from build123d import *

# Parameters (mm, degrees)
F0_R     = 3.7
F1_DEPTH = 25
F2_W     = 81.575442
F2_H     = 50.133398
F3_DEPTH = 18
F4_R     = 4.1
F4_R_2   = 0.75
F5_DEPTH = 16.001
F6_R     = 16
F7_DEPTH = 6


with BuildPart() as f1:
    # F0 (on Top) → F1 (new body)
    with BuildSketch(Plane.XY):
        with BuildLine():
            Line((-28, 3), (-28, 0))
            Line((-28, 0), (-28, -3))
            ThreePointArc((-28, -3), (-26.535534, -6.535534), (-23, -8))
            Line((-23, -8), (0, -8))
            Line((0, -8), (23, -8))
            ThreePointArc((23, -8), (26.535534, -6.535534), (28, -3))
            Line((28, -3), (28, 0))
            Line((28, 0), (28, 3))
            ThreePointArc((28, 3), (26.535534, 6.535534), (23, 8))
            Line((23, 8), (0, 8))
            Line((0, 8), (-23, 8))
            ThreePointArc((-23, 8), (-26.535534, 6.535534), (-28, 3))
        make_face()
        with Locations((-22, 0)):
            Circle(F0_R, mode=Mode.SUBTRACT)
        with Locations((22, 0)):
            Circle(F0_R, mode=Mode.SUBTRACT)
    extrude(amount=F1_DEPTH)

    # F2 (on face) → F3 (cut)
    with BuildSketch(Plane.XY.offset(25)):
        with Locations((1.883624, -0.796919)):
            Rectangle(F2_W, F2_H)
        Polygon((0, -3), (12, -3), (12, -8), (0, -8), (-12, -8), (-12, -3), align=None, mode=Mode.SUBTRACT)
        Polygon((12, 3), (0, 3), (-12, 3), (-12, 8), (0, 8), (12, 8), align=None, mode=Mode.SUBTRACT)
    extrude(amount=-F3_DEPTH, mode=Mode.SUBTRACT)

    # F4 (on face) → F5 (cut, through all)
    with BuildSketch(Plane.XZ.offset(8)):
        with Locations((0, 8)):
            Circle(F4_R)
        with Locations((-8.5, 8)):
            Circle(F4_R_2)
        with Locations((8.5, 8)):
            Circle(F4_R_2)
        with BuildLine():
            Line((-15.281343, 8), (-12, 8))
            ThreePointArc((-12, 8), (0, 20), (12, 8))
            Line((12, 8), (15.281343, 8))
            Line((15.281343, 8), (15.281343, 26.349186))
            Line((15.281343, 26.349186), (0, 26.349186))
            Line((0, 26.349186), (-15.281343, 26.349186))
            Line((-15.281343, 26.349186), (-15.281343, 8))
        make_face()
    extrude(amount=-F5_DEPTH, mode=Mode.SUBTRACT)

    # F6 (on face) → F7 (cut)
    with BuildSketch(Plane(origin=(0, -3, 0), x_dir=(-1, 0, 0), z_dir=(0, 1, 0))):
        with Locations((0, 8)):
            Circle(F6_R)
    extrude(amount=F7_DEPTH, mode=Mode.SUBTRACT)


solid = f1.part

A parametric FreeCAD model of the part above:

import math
import FreeCAD as App
import Part
import Sketcher
from FreeCAD import Vector

doc = App.newDocument("Part")
body = doc.addObject("PartDesign::Body", "Body")

sketch1 = body.newObject("Sketcher::SketchObject", "Sketch")
sketch1.AttachmentSupport = (doc.getObject("XY_Plane"), [""])
sketch1.MapMode = "FlatFace"
sketch1.addGeometry([
    Part.LineSegment(Vector(-28, 3, 0), Vector(-28, -3, 0)),
    Part.ArcOfCircle(Part.Circle(Vector(-23, -3, 0), Vector(0, 0, 1), 5), math.radians(180), math.radians(270)),
    Part.LineSegment(Vector(-23, -8, 0), Vector(23, -8, 0)),
    Part.ArcOfCircle(Part.Circle(Vector(23, -3, 0), Vector(0, 0, 1), 5), math.radians(-90), math.radians(0)),
    Part.LineSegment(Vector(28, -3, 0), Vector(28, 3, 0)),
    Part.ArcOfCircle(Part.Circle(Vector(23, 3, 0), Vector(0, 0, 1), 5), math.radians(0), math.radians(90)),
    Part.LineSegment(Vector(23, 8, 0), Vector(-23, 8, 0)),
    Part.ArcOfCircle(Part.Circle(Vector(-23, 3, 0), Vector(0, 0, 1), 5), math.radians(90), math.radians(180)),
    Part.Circle(Vector(-22, 0, 0), Vector(0, 0, 1), 3.7),
    Part.Circle(Vector(22, 0, 0), Vector(0, 0, 1), 3.7),
], False)
sketch1.addConstraint([
    Sketcher.Constraint("Tangent", 0, 2, 1, 1),
    Sketcher.Constraint("Tangent", 1, 2, 2, 1),
    Sketcher.Constraint("Tangent", 2, 2, 3, 1),
    Sketcher.Constraint("Tangent", 3, 2, 4, 1),
    Sketcher.Constraint("Tangent", 4, 2, 5, 1),
    Sketcher.Constraint("Tangent", 5, 2, 6, 1),
    Sketcher.Constraint("Tangent", 6, 2, 7, 1),
    Sketcher.Constraint("Tangent", 7, 2, 0, 1),
    Sketcher.Constraint("Vertical", 0),
    Sketcher.Constraint("Horizontal", 2),
    Sketcher.Constraint("Vertical", 4),
    Sketcher.Constraint("Horizontal", 6),
    Sketcher.Constraint("Equal", 1, 3),
    Sketcher.Constraint("Equal", 3, 5),
    Sketcher.Constraint("Equal", 5, 7),
    Sketcher.Constraint("Equal", 8, 9),
    Sketcher.Constraint("Symmetric", 1, 3, 5, 3, -1, 1),
    Sketcher.Constraint("Symmetric", 8, 3, 9, 3, -1, 1),
    Sketcher.Constraint("PointOnObject", 8, 3, -1),
    Sketcher.Constraint("Radius", 1, 5.0),
    Sketcher.Constraint("Diameter", 8, 7.4),
    Sketcher.Constraint("DistanceX", 2, 1, 2, 2, 46.0),
    Sketcher.Constraint("DistanceY", 0, 2, 0, 1, 6.0),
    Sketcher.Constraint("DistanceX", 8, 3, -1, 1, 22.0),
])
pad1 = body.newObject("PartDesign::Pad", "Pad")
pad1.Profile = sketch1
pad1.Length = 25

sketch2 = body.newObject("Sketcher::SketchObject", "Sketch001")
sketch2.AttachmentSupport = (doc.getObject("XY_Plane"), [""])
sketch2.MapMode = "FlatFace"
sketch2.AttachmentOffset = App.Placement(Vector(0, 0, 25), App.Rotation())
sketch2.addGeometry([
    Part.LineSegment(Vector(-39, 24, 0), Vector(-39, -26, 0)),
    Part.LineSegment(Vector(-39, -26, 0), Vector(43, -26, 0)),
    Part.LineSegment(Vector(43, -26, 0), Vector(43, 24, 0)),
    Part.LineSegment(Vector(43, 24, 0), Vector(-39, 24, 0)),
    Part.LineSegment(Vector(-12, -3, 0), Vector(12, -3, 0)),
    Part.LineSegment(Vector(12, -3, 0), Vector(12, -8, 0)),
    Part.LineSegment(Vector(12, -8, 0), Vector(-12, -8, 0)),
    Part.LineSegment(Vector(-12, -8, 0), Vector(-12, -3, 0)),
    Part.LineSegment(Vector(12, 8, 0), Vector(12, 3, 0)),
    Part.LineSegment(Vector(12, 3, 0), Vector(-12, 3, 0)),
    Part.LineSegment(Vector(-12, 3, 0), Vector(-12, 8, 0)),
    Part.LineSegment(Vector(-12, 8, 0), Vector(12, 8, 0)),
], False)
sketch2.addConstraint([
    Sketcher.Constraint("Coincident", 0, 2, 1, 1),
    Sketcher.Constraint("Coincident", 1, 2, 2, 1),
    Sketcher.Constraint("Coincident", 2, 2, 3, 1),
    Sketcher.Constraint("Coincident", 3, 2, 0, 1),
    Sketcher.Constraint("Coincident", 4, 2, 5, 1),
    Sketcher.Constraint("Coincident", 5, 2, 6, 1),
    Sketcher.Constraint("Coincident", 6, 2, 7, 1),
    Sketcher.Constraint("Coincident", 7, 2, 4, 1),
    Sketcher.Constraint("Coincident", 8, 2, 9, 1),
    Sketcher.Constraint("Coincident", 9, 2, 10, 1),
    Sketcher.Constraint("Coincident", 10, 2, 11, 1),
    Sketcher.Constraint("Coincident", 11, 2, 8, 1),
    Sketcher.Constraint("Vertical", 0),
    Sketcher.Constraint("Horizontal", 1),
    Sketcher.Constraint("Vertical", 2),
    Sketcher.Constraint("Horizontal", 3),
    Sketcher.Constraint("Horizontal", 4),
    Sketcher.Constraint("Vertical", 5),
    Sketcher.Constraint("Horizontal", 6),
    Sketcher.Constraint("Vertical", 7),
    Sketcher.Constraint("Vertical", 8),
    Sketcher.Constraint("Horizontal", 9),
    Sketcher.Constraint("Vertical", 10),
    Sketcher.Constraint("Horizontal", 11),
    Sketcher.Constraint("Symmetric", 7, 2, 8, 2, -1, 1),
    Sketcher.Constraint("Symmetric", 5, 2, 10, 2, -1, 1),
    Sketcher.Constraint("Vertical", 5, 2, 8, 2),
    Sketcher.Constraint("DistanceX", 4, 1, 4, 2, 24.0),
    Sketcher.Constraint("DistanceY", 5, 2, 5, 1, 5.0),
    Sketcher.Constraint("DistanceY", 4, 2, -1, 1, 3.0),
    Sketcher.Constraint("DistanceX", 1, 1, 1, 2, 81.575442),
    Sketcher.Constraint("DistanceY", 0, 2, 0, 1, 50.133398),
    Sketcher.Constraint("DistanceY", -1, 1, 2, 2, 24.26978),
    Sketcher.Constraint("DistanceX", 0, 2, -1, 1, 38.904097),
])
pocket1 = body.newObject("PartDesign::Pocket", "Pocket")
pocket1.Profile = sketch2
pocket1.Length = 18

sketch3 = body.newObject("Sketcher::SketchObject", "Sketch002")
sketch3.AttachmentSupport = (doc.getObject("XZ_Plane"), [""])
sketch3.MapMode = "FlatFace"
sketch3.AttachmentOffset = App.Placement(Vector(0, 0, 8), App.Rotation())
sketch3.addGeometry([
    Part.Circle(Vector(0, 8, 0), Vector(0, 0, 1), 4.1),
    Part.Circle(Vector(-8.5, 8, 0), Vector(0, 0, 1), 0.8),
    Part.Circle(Vector(8.5, 8, 0), Vector(0, 0, 1), 0.8),
    Part.LineSegment(Vector(-15.3, 8, 0), Vector(-12, 8, 0)),
    Part.ArcOfCircle(Part.Circle(Vector(0, 8, 0), Vector(0, 0, 1), 12), math.radians(0), math.radians(180)),
    Part.LineSegment(Vector(12, 8, 0), Vector(15.3, 8, 0)),
    Part.LineSegment(Vector(15.3, 8, 0), Vector(15.3, 26.3, 0)),
    Part.LineSegment(Vector(15.3, 26.3, 0), Vector(-15.3, 26.3, 0)),
    Part.LineSegment(Vector(-15.3, 26.3, 0), Vector(-15.3, 8, 0)),
], False)
sketch3.addConstraint([
    Sketcher.Constraint("Coincident", 3, 2, 4, 2),
    Sketcher.Constraint("Coincident", 4, 1, 5, 1),
    Sketcher.Constraint("Coincident", 5, 2, 6, 1),
    Sketcher.Constraint("Coincident", 6, 2, 7, 1),
    Sketcher.Constraint("Coincident", 7, 2, 8, 1),
    Sketcher.Constraint("Coincident", 8, 2, 3, 1),
    Sketcher.Constraint("Horizontal", 3),
    Sketcher.Constraint("Horizontal", 5),
    Sketcher.Constraint("Vertical", 6),
    Sketcher.Constraint("Horizontal", 7),
    Sketcher.Constraint("Vertical", 8),
    Sketcher.Constraint("Coincident", 4, 3, 0, 3),
    Sketcher.Constraint("Equal", 1, 2),
    Sketcher.Constraint("Symmetric", 1, 3, 2, 3, -2),
    Sketcher.Constraint("Symmetric", 3, 2, 4, 1, -2),
    Sketcher.Constraint("Horizontal", 0, 3, 1, 3),
    Sketcher.Constraint("Horizontal", 4, 3, 3, 2),
    Sketcher.Constraint("Equal", 3, 5),
    Sketcher.Constraint("Radius", 4, 12.0),
    Sketcher.Constraint("Diameter", 0, 8.2),
    Sketcher.Constraint("Diameter", 1, 1.5),
    Sketcher.Constraint("DistanceY", -1, 1, 0, 3, 8.0),
    Sketcher.Constraint("DistanceX", 1, 3, 2, 3, 17.0),
    Sketcher.Constraint("DistanceX", 3, 1, 3, 2, 3.281343),
    Sketcher.Constraint("DistanceY", 6, 1, 6, 2, 18.349186),
])
pocket2 = body.newObject("PartDesign::Pocket", "Pocket001")
pocket2.Profile = sketch3
pocket2.Type = "ThroughAll"

sketch4 = body.newObject("Sketcher::SketchObject", "Sketch003")
sketch4.AttachmentSupport = (doc.getObject("XZ_Plane"), [""])
sketch4.MapMode = "FlatFace"
sketch4.AttachmentOffset = App.Placement(Vector(0, 0, 3), App.Rotation())
sketch4.addGeometry(Part.Circle(Vector(0, 8, 0), Vector(0, 0, 1), 16), False)
sketch4.addConstraint([
    Sketcher.Constraint("PointOnObject", 0, 3, -2),
    Sketcher.Constraint("Diameter", 0, 32.0),
    Sketcher.Constraint("DistanceY", -1, 1, 0, 3, 8.0),
])
pocket3 = body.newObject("PartDesign::Pocket", "Pocket002")
pocket3.Profile = sketch4
pocket3.Length = 6

doc.recompute()
